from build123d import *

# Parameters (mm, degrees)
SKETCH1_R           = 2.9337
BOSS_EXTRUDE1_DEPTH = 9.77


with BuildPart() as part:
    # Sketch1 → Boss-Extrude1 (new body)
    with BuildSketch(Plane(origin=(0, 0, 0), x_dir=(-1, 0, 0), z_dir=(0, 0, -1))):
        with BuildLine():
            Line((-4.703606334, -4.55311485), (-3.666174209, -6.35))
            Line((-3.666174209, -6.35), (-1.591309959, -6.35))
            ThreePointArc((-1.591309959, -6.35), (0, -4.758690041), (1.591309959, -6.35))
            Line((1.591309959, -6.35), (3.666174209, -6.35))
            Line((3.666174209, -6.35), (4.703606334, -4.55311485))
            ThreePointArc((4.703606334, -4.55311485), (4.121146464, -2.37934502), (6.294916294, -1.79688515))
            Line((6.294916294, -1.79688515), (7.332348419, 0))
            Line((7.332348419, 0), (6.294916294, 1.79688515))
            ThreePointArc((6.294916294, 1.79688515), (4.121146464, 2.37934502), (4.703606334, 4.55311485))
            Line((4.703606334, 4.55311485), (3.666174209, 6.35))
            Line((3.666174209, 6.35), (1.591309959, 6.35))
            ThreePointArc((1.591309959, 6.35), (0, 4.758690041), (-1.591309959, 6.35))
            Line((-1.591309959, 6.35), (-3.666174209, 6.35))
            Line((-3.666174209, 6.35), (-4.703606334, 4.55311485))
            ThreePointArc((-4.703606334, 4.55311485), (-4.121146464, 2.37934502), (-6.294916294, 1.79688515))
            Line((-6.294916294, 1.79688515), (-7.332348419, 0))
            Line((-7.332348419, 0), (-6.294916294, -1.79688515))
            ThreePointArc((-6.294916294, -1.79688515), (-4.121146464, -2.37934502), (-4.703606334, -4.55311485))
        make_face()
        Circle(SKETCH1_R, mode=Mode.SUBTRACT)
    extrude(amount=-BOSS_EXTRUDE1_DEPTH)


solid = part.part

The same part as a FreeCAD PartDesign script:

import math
import FreeCAD as App
import Part
import Sketcher

V = App.Vector
Q = App.Units.Quantity

doc = App.newDocument("Part")
params = doc.addObject("Spreadsheet::Sheet", "Params")
for row, (alias, value) in enumerate([
    ("sketch1_diameter", "0.231 in"),
    ("pad1_length", "9.77 mm"),
], start=1):
    params.set(f"A{row}", alias)
    params.set(f"B{row}", "=" + value)
    params.setAlias(f"B{row}", alias)

body = doc.addObject("PartDesign::Body", "Body")

sketch1 = body.newObject("Sketcher::SketchObject", "Sketch")
sketch1.AttachmentSupport = (doc.getObject("XY_Plane"), [""])
sketch1.MapMode = "FlatFace"
sketch1.addGeometry([
    Part.LineSegment(V(4.7, -4.6, 0), V(3.7, -6.3, 0)),
    Part.LineSegment(V(3.7, -6.3, 0), V(1.6, -6.3, 0)),
    Part.ArcOfCircle(Part.Circle(V(0, -6.3, 0), V(0, 0, 1), 1.6), math.radians(0), math.radians(180)),
    Part.LineSegment(V(-1.6, -6.3, 0), V(-3.7, -6.3, 0)),
    Part.LineSegment(V(-3.7, -6.3, 0), V(-4.7, -4.6, 0)),
    Part.ArcOfCircle(Part.Circle(V(-5.5, -3.2, 0), V(0, 0, 1), 1.6), math.radians(-60), math.radians(120)),
    Part.LineSegment(V(-6.3, -1.8, 0), V(-7.3, 0, 0)),
    Part.LineSegment(V(-7.3, 0, 0), V(-6.3, 1.8, 0)),
    Part.ArcOfCircle(Part.Circle(V(-5.5, 3.2, 0), V(0, 0, 1), 1.6), math.radians(-120), math.radians(60)),
    Part.LineSegment(V(-4.7, 4.6, 0), V(-3.7, 6.3, 0)),
    Part.LineSegment(V(-3.7, 6.3, 0), V(-1.6, 6.3, 0)),
    Part.ArcOfCircle(Part.Circle(V(0, 6.3, 0), V(0, 0, 1), 1.6), math.radians(180), math.radians(360)),
    Part.LineSegment(V(1.6, 6.3, 0), V(3.7, 6.3, 0)),
    Part.LineSegment(V(3.7, 6.3, 0), V(4.7, 4.6, 0)),
    Part.ArcOfCircle(Part.Circle(V(5.5, 3.2, 0), V(0, 0, 1), 1.6), math.radians(120), math.radians(300)),
    Part.LineSegment(V(6.3, 1.8, 0), V(7.3, 0, 0)),
    Part.LineSegment(V(7.3, 0, 0), V(6.3, -1.8, 0)),
    Part.ArcOfCircle(Part.Circle(V(5.5, -3.2, 0), V(0, 0, 1), 1.6), math.radians(60), math.radians(240)),
    Part.Circle(V(0, 0, 0), V(0, 0, 1), 2.9),
], False)
sketch1.addConstraint([
    Sketcher.Constraint("Coincident", 0, 2, 1, 1),
    Sketcher.Constraint("Coincident", 1, 2, 2, 1),
    Sketcher.Constraint("Coincident", 2, 2, 3, 1),
    Sketcher.Constraint("Coincident", 3, 2, 4, 1),
    Sketcher.Constraint("Coincident", 4, 2, 5, 1),
    Sketcher.Constraint("Coincident", 5, 2, 6, 1),
    Sketcher.Constraint("Coincident", 6, 2, 7, 1),
    Sketcher.Constraint("Coincident", 7, 2, 8, 1),
    Sketcher.Constraint("Coincident", 8, 2, 9, 1),
    Sketcher.Constraint("Coincident", 9, 2, 10, 1),
    Sketcher.Constraint("Coincident", 10, 2, 11, 1),
    Sketcher.Constraint("Coincident", 11, 2, 12, 1),
    Sketcher.Constraint("Coincident", 12, 2, 13, 1),
    Sketcher.Constraint("Coincident", 13, 2, 14, 1),
    Sketcher.Constraint("Coincident", 14, 2, 15, 1),
    Sketcher.Constraint("Coincident", 15, 2, 16, 1),
    Sketcher.Constraint("Coincident", 16, 2, 17, 1),
    Sketcher.Constraint("Coincident", 17, 2, 0, 1),
    Sketcher.Constraint("Horizontal", 1),
    Sketcher.Constraint("Horizontal", 3),
    Sketcher.Constraint("Horizontal", 10),
    Sketcher.Constraint("Horizontal", 12),
    Sketcher.Constraint("Coincident", 18, 3, -1, 1),
    Sketcher.Constraint("Equal", 2, 5),
    Sketcher.Constraint("Equal", 5, 8),
    Sketcher.Constraint("Equal", 8, 11),
    Sketcher.Constraint("Equal", 11, 14),
    Sketcher.Constraint("Equal", 14, 17),
    Sketcher.Constraint("Symmetric", 2, 3, 11, 3, -1, 1),
    Sketcher.Constraint("Symmetric", 5, 3, 14, 3, -1, 1),
    Sketcher.Constraint("Symmetric", 8, 3, 17, 3, -1, 1),
    Sketcher.Constraint("Symmetric", 0, 2, 9, 2, -1, 1),
    Sketcher.Constraint("Symmetric", 3, 2, 12, 2, -1, 1),
    Sketcher.Constraint("Symmetric", 6, 2, 15, 2, -1, 1),
    Sketcher.Constraint("Symmetric", 8, 3, 14, 3, -2),
    Sketcher.Constraint("Symmetric", 1, 2, 2, 2, -2),
    Sketcher.Constraint("PointOnObject", 6, 2, -1),
    Sketcher.Constraint("Parallel", 4, 6),
    Sketcher.Constraint("Parallel", 0, 7),
    Sketcher.Constraint("Parallel", 7, 9),
    Sketcher.Constraint("Parallel", 6, 13),
    Sketcher.Constraint("Parallel", 13, 15),
    Sketcher.Constraint("Parallel", 9, 16),
    Sketcher.Constraint("Horizontal", 2, 3, 0, 2),
    Sketcher.Constraint("Horizontal", 8, 2, 13, 2),
    Sketcher.Constraint("Horizontal", 7, 2, 14, 2),
    Sketcher.Constraint("Equal", 4, 6),
    Sketcher.Constraint("Diameter", 18, Q("0.231 in")),
    Sketcher.Constraint("Angle", 0, Q("-120 deg")),
    Sketcher.Constraint("DistanceY", 2, 3, 11, 3, Q("0.5 in")),
    Sketcher.Constraint("DistanceY", 5, 3, 8, 3, Q("0.25 in")),
    Sketcher.Constraint("Radius", 2, Q("1.59131 mm")),
    Sketcher.Constraint("DistanceX", 1, 2, 1, 1, Q("2.074864 mm")),
    Sketcher.Constraint("DistanceX", 5, 3, -1, 1, Q("5.499261 mm")),
])
sketch1.setExpression("Constraints[47]", "Params.sketch1_diameter")
pad1 = body.newObject("PartDesign::Pad", "Pad")
pad1.Profile = sketch1
pad1.setExpression("Length", "Params.pad1_length")

doc.recompute()
